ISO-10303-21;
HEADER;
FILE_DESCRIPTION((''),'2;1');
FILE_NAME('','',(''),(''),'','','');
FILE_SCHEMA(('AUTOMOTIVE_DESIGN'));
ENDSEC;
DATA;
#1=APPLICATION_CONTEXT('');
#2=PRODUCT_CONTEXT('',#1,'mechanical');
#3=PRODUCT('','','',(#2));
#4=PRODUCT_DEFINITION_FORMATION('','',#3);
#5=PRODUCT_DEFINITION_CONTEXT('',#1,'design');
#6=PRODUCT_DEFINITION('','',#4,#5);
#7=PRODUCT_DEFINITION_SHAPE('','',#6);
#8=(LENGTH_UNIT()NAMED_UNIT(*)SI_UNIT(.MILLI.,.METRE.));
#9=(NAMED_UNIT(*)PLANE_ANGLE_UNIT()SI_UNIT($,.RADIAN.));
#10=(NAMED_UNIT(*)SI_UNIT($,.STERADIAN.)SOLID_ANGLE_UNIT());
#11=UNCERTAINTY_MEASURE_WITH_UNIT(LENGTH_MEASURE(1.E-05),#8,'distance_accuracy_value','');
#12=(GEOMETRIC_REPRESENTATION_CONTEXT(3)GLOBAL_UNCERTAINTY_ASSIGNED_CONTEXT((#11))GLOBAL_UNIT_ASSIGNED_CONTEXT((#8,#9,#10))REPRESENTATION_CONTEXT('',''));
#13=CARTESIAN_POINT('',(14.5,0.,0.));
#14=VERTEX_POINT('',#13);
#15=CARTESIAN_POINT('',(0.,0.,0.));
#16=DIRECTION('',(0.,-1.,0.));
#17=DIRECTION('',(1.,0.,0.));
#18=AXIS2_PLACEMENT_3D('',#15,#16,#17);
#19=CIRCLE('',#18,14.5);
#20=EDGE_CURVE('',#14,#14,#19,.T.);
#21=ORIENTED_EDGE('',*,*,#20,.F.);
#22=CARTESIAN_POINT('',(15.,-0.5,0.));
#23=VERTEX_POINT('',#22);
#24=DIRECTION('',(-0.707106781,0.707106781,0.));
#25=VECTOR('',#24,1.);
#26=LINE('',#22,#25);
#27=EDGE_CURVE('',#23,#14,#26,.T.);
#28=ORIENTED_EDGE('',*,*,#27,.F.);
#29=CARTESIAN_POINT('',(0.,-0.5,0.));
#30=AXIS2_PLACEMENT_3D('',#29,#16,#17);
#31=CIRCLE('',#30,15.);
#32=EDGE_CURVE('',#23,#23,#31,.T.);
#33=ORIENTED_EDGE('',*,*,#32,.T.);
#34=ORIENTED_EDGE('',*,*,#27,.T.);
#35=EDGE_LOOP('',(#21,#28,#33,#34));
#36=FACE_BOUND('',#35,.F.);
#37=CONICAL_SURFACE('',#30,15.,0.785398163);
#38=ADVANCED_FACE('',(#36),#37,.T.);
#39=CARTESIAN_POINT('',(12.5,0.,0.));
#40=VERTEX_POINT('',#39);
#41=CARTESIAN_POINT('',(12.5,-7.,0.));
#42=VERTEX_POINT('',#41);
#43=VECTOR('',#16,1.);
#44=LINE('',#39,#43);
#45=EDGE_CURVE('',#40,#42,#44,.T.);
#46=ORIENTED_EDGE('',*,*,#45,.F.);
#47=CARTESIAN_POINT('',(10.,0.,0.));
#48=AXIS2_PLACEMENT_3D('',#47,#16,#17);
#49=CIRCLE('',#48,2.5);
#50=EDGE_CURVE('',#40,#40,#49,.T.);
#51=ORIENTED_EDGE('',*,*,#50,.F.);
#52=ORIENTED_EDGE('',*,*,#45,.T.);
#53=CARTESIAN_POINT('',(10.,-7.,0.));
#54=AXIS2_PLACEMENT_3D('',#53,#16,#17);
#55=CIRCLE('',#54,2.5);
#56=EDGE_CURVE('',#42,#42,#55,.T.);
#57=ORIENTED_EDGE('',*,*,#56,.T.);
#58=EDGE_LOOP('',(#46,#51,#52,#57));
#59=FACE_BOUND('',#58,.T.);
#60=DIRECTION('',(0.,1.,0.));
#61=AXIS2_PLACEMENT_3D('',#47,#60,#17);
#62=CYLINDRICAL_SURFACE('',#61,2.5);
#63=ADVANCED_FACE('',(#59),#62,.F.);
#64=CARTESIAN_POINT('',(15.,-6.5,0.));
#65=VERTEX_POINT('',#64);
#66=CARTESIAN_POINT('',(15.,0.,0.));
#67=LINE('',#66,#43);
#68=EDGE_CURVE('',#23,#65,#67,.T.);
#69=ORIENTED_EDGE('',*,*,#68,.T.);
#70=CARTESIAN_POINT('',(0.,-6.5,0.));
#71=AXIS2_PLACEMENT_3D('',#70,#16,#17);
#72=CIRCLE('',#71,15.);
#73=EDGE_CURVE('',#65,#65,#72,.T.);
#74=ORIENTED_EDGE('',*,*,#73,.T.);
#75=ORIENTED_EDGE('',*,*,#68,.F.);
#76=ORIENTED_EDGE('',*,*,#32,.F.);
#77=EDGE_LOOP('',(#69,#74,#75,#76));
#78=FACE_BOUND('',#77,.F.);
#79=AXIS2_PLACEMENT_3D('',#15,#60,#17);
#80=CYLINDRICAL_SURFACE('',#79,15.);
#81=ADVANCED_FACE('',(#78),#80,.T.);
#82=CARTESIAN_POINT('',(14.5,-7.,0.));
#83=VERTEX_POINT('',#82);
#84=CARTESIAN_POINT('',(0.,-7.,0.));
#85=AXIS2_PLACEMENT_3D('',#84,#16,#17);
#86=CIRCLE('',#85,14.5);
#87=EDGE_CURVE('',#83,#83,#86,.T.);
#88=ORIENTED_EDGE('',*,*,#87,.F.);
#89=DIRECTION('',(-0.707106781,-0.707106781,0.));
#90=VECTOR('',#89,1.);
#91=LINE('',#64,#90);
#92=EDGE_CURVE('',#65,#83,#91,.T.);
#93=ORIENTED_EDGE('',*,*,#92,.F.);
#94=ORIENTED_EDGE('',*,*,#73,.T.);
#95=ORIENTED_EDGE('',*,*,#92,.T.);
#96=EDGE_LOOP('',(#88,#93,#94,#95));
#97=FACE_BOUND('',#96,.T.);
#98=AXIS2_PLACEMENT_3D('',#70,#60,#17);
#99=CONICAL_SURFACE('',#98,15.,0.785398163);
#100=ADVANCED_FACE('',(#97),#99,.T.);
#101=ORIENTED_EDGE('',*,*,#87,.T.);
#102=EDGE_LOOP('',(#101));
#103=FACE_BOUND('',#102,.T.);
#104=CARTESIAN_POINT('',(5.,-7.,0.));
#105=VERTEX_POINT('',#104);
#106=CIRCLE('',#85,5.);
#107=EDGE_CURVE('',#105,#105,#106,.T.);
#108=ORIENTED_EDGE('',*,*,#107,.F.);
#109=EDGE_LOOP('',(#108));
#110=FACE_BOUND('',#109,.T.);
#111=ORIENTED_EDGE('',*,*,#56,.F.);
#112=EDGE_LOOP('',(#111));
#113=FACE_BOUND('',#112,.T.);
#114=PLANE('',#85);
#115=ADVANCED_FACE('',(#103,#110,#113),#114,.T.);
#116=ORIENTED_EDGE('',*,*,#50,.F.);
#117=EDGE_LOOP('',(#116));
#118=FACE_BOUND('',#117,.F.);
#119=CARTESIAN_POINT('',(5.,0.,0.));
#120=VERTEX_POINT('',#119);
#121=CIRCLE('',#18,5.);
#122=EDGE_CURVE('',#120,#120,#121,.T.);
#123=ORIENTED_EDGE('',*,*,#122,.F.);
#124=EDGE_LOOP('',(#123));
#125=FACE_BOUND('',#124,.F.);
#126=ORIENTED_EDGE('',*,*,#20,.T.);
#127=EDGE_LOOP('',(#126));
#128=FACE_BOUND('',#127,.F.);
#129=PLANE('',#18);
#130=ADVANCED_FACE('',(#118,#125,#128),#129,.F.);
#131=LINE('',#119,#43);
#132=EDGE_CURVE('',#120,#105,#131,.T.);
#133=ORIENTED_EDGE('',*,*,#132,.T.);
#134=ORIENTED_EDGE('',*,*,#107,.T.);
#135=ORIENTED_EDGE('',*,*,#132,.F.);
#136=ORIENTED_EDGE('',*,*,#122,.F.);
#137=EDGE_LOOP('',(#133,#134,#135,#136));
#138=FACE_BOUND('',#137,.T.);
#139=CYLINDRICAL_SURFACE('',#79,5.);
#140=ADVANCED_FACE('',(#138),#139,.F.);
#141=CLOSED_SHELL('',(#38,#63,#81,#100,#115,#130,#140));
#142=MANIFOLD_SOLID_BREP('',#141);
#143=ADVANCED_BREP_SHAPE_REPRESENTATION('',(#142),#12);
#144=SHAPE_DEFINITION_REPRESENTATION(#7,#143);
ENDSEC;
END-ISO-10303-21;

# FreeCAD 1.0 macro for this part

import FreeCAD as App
import Part
import Sketcher
Q = App.Units.Quantity


def edges_at(feature, points):
    """Names of the edges that pass closest to the given points."""
    edges = feature.Shape.Edges
    near = lambda p: min(range(len(edges)), key=lambda i: edges[i].distToShape(Part.Vertex(*p))[0])
    return sorted({f"Edge{near(p) + 1}" for p in points})

doc = App.newDocument("Part")
body = doc.addObject("PartDesign::Body", "Body")

sketch1 = doc.addObject("Sketcher::SketchObject", "Sketch")
body.addObject(sketch1)
sketch1.AttachmentSupport = (doc.XZ_Plane, [""])
sketch1.MapMode = "FlatFace"
sketch1.addGeometry([
    Part.Circle(App.Vector(0, 0, 0), App.Vector(0, 0, 1), 15),
    Part.Circle(App.Vector(0, 0, 0), App.Vector(0, 0, 1), 5),
    Part.Circle(App.Vector(10, 0, 0), App.Vector(0, 0, 1), 2.5),
], False)
sketch1.addConstraint([
    Sketcher.Constraint("Coincident", 0, 3, -1, 1),
    Sketcher.Constraint("Coincident", 1, 3, -1, 1),
    Sketcher.Constraint("PointOnObject", 2, 3, -1),
    Sketcher.Constraint("Diameter", 0, Q("30 mm")),
    Sketcher.Constraint("Diameter", 1, Q("10 mm")),
    Sketcher.Constraint("Diameter", 2, Q("5 mm")),
    Sketcher.Constraint("DistanceX", -1, 1, 2, 3, Q("10 mm")),
])
pad1 = doc.addObject("PartDesign::Pad", "Pad")
body.addObject(pad1)
pad1.Profile = sketch1
pad1.Length = 7
doc.recompute()

chamfer = doc.addObject("PartDesign::Chamfer", "Chamfer")
body.addObject(chamfer)
chamfer.Base = (pad1, edges_at(pad1, [(-15, -7, 0)]))
chamfer.Size = 0.5
doc.recompute()

chamfer2 = doc.addObject("PartDesign::Chamfer", "Chamfer001")
body.addObject(chamfer2)
chamfer2.Base = (chamfer, edges_at(chamfer, [(-15, 0, 0)]))
chamfer2.Size = 0.5

doc.recompute()
